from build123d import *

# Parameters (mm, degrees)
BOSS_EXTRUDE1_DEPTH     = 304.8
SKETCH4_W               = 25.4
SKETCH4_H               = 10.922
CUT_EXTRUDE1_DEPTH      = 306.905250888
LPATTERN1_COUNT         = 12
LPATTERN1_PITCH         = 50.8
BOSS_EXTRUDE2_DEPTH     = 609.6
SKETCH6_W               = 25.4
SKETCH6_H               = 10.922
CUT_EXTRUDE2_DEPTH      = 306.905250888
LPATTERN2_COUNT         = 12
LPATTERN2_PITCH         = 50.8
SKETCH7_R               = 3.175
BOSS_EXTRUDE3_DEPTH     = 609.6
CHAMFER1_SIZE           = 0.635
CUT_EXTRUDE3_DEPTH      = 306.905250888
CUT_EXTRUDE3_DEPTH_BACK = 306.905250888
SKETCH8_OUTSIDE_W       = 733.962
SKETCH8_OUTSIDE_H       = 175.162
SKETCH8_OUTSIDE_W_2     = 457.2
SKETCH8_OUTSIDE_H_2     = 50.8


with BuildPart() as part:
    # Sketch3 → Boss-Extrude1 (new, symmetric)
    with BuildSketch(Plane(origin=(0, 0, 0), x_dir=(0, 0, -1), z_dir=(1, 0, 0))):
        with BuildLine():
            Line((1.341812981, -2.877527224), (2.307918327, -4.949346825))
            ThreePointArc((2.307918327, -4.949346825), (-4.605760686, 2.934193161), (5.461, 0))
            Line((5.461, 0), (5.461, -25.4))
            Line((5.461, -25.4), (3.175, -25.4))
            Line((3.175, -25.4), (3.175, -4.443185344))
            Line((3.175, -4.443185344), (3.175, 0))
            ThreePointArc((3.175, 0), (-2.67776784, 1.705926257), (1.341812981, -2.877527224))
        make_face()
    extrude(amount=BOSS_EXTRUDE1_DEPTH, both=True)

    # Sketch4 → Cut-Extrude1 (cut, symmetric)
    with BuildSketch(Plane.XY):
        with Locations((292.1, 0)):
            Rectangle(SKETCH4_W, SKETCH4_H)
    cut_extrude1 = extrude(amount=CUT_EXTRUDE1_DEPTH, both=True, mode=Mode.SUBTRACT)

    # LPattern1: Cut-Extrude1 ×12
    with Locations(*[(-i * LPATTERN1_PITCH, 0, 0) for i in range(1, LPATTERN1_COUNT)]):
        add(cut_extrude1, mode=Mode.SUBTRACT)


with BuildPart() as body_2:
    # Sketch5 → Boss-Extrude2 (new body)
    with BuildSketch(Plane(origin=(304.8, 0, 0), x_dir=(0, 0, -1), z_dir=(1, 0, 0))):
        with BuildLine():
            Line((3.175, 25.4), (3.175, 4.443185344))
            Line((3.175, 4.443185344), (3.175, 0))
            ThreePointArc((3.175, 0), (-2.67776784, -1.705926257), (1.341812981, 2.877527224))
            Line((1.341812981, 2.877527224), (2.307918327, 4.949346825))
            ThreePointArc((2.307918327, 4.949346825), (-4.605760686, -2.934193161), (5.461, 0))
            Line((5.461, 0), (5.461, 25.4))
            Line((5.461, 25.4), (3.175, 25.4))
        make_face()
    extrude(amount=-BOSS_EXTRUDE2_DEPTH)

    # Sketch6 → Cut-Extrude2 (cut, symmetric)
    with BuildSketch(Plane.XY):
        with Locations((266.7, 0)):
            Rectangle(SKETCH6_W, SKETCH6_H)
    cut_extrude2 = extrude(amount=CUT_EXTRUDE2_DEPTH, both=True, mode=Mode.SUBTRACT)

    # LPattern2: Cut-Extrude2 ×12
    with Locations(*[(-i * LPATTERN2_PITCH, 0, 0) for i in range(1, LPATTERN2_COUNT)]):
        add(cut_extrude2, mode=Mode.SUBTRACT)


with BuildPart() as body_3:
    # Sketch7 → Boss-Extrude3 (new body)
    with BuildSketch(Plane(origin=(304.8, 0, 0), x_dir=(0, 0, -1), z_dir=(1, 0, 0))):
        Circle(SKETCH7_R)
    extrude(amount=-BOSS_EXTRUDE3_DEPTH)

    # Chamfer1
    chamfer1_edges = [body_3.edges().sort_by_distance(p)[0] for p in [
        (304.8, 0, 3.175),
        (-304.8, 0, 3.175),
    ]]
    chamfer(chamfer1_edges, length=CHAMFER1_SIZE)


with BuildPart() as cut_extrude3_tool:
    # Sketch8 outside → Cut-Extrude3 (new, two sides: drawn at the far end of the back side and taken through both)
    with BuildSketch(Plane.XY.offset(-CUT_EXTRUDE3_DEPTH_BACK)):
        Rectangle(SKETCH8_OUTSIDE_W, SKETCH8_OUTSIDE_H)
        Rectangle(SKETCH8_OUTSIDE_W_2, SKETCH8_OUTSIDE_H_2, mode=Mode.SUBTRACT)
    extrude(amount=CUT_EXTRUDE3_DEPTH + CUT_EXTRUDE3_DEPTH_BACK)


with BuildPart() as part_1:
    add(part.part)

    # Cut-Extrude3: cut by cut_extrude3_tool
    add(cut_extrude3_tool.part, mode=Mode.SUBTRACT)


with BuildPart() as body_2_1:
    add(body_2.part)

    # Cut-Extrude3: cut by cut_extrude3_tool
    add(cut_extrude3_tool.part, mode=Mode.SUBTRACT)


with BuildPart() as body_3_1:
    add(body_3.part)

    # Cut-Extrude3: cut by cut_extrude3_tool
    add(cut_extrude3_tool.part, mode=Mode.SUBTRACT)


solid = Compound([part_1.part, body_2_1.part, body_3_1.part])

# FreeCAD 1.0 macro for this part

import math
import FreeCAD as App
import Part
import Sketcher
from FreeCAD import Vector
Q = App.Units.Quantity


def edges_at(feature, points):
    """Names of the edges that pass closest to the given points."""
    edges = feature.Shape.Edges
    near = lambda p: min(range(len(edges)), key=lambda i: edges[i].distToShape(Part.Vertex(*p))[0])
    return sorted({f"Edge{near(p) + 1}" for p in points})


def add_polygon(sketch, points):
    """Adds a closed chain of lines whose ends are joined by coincident constraints."""
    first, n = sketch.GeometryCount, len(points)
    for a, b in zip(points, points[1:] + points[:1]):
        sketch.addGeometry(Part.LineSegment(App.Vector(*a, 0), App.Vector(*b, 0)), False)
    for i in range(n):
        sketch.addConstraint(Sketcher.Constraint("Coincident", first + i, 2, first + (i + 1) % n, 1))

doc = App.newDocument("Part")
body = doc.addObject("PartDesign::Body", "Body")

sketch1 = body.newObject("Sketcher::SketchObject", "Sketch")
sketch1.AttachmentSupport = (doc.getObject("YZ_Plane"), [""])
sketch1.MapMode = "FlatFace"
sketch1.addGeometry([
    Part.LineSegment(Vector(-4.949347, -2.307918, 0), Vector(-2.877527, -1.341813, 0)),
    Part.ArcOfCircle(Part.Circle(Vector(0, 0, 0), Vector(0, 0, 1), 3.175), math.radians(-90), math.radians(205)),
    Part.LineSegment(Vector(0, -3.175, 0), Vector(-25.4, -3.175, 0)),
    Part.LineSegment(Vector(-25.4, -3.175, 0), Vector(-25.4, -5.461, 0)),
    Part.LineSegment(Vector(-25.4, -5.461, 0), Vector(0, -5.461, 0)),
    Part.ArcOfCircle(Part.Circle(Vector(0, 0, 0), Vector(0, 0, 1), 5.461), math.radians(-90), math.radians(205)),
], False)
sketch1.addConstraint([
    Sketcher.Constraint("Coincident", 0, 2, 1, 2),
    Sketcher.Constraint("Tangent", 1, 1, 2, 1),
    Sketcher.Constraint("Coincident", 2, 2, 3, 1),
    Sketcher.Constraint("Coincident", 3, 2, 4, 1),
    Sketcher.Constraint("Tangent", 4, 2, 5, 1),
    Sketcher.Constraint("Coincident", 5, 2, 0, 1),
    Sketcher.Constraint("Horizontal", 2),
    Sketcher.Constraint("Vertical", 3),
    Sketcher.Constraint("Horizontal", 4),
    Sketcher.Constraint("Coincident", 1, 3, -1, 1),
    Sketcher.Constraint("Coincident", 5, 3, -1, 1),
    Sketcher.Constraint("DistanceX", 2, 2, 2, 1, Q("1 in")),
    Sketcher.Constraint("Angle", 0, Q("25 deg")),
    Sketcher.Constraint("Radius", 1, Q("0.125 in")),
    Sketcher.Constraint("Radius", 5, Q("0.215 in")),
    Sketcher.Constraint("DistanceY", 5, 2, -1, 1, Q("2.307918 mm")),
])
pad1 = body.newObject("PartDesign::Pad", "Pad")
pad1.Profile = sketch1
pad1.Length = Q("24 in")
pad1.Midplane = True

sketch2 = body.newObject("Sketcher::SketchObject", "Sketch001")
sketch2.AttachmentSupport = (doc.getObject("XY_Plane"), [""])
sketch2.MapMode = "FlatFace"
add_polygon(sketch2, [(279.4, 5.461), (279.4, -5.461), (304.8, -5.461), (304.8, 5.461)])
sketch2.addConstraint([
    Sketcher.Constraint("Vertical", 0),
    Sketcher.Constraint("Horizontal", 1),
    Sketcher.Constraint("Vertical", 2),
    Sketcher.Constraint("Horizontal", 3),
    Sketcher.Constraint("DistanceX", 1, 1, 1, 2, Q("1 in")),
    Sketcher.Constraint("DistanceX", -1, 1, 0, 2, Q("11 in")),
    Sketcher.Constraint("DistanceY", 0, 2, 0, 1, Q("0.43 in")),
    Sketcher.Constraint("DistanceY", 0, 2, -1, 1, Q("0.215 in")),
])
pocket1 = body.newObject("PartDesign::Pocket", "Pocket")
pocket1.Profile = sketch2
pocket1.Length = 613.810502
pocket1.Midplane = True
doc.recompute()

linearpattern = body.newObject("PartDesign::LinearPattern", "LinearPattern")
linearpattern.Originals = [pocket1]
linearpattern.Direction = (doc.getObject("X_Axis"), [""])
linearpattern.Mode = "offset"
linearpattern.Offset = Q("2 in")
linearpattern.Occurrences = 12
linearpattern.Reversed = True
body.Tip = linearpattern
body2 = doc.addObject("PartDesign::Body", "Body001")

sketch3 = body2.newObject("Sketcher::SketchObject", "Sketch002")
sketch3.AttachmentSupport = (doc.getObject("YZ_Plane001"), [""])
sketch3.MapMode = "FlatFace"
sketch3.AttachmentOffset = App.Placement(Vector(0, 0, 12 * 25.4), App.Rotation())
sketch3.addGeometry([
    Part.LineSegment(Vector(25.4, -3.175, 0), Vector(0, -3.175, 0)),
    Part.ArcOfCircle(Part.Circle(Vector(0, 0, 0), Vector(0, 0, 1), 3.175), math.radians(-25), math.radians(270)),
    Part.LineSegment(Vector(2.877527, -1.341813, 0), Vector(4.949347, -2.307918, 0)),
    Part.ArcOfCircle(Part.Circle(Vector(0, 0, 0), Vector(0, 0, 1), 5.461), math.radians(-25), math.radians(270)),
    Part.LineSegment(Vector(0, -5.461, 0), Vector(25.4, -5.461, 0)),
    Part.LineSegment(Vector(25.4, -5.461, 0), Vector(25.4, -3.175, 0)),
], False)
sketch3.addConstraint([
    Sketcher.Constraint("Tangent", 0, 2, 1, 2),
    Sketcher.Constraint("Coincident", 1, 1, 2, 1),
    Sketcher.Constraint("Coincident", 2, 2, 3, 1),
    Sketcher.Constraint("Tangent", 3, 2, 4, 1),
    Sketcher.Constraint("Coincident", 4, 2, 5, 1),
    Sketcher.Constraint("Coincident", 5, 2, 0, 1),
    Sketcher.Constraint("Horizontal", 0),
    Sketcher.Constraint("Horizontal", 4),
    Sketcher.Constraint("Vertical", 5),
    Sketcher.Constraint("Coincident", 1, 3, -1, 1),
    Sketcher.Constraint("Coincident", 3, 3, -1, 1),
    Sketcher.Constraint("DistanceX", 0, 2, 0, 1, Q("1 in")),
    Sketcher.Constraint("Angle", 2, Q("-25 deg")),
    Sketcher.Constraint("Radius", 1, Q("0.125 in")),
    Sketcher.Constraint("Radius", 3, Q("0.215 in")),
    Sketcher.Constraint("DistanceY", 2, 2, -1, 1, Q("2.307918 mm")),
])
pad2 = body2.newObject("PartDesign::Pad", "Pad001")
pad2.Profile = sketch3
pad2.Length = Q("24 in")
pad2.Reversed = True

sketch4 = body2.newObject("Sketcher::SketchObject", "Sketch003")
sketch4.AttachmentSupport = (doc.getObject("XY_Plane001"), [""])
sketch4.MapMode = "FlatFace"
add_polygon(sketch4, [(254, 5.461), (254, -5.461), (279.4, -5.461), (279.4, 5.461)])
sketch4.addConstraint([
    Sketcher.Constraint("Vertical", 0),
    Sketcher.Constraint("Horizontal", 1),
    Sketcher.Constraint("Vertical", 2),
    Sketcher.Constraint("Horizontal", 3),
    Sketcher.Constraint("DistanceX", 1, 1, 1, 2, Q("1 in")),
    Sketcher.Constraint("DistanceX", -1, 1, 0, 2, Q("10 in")),
    Sketcher.Constraint("DistanceY", 0, 2, 0, 1, Q("0.43 in")),
    Sketcher.Constraint("DistanceY", 0, 2, -1, 1, Q("0.215 in")),
])
pocket2 = body2.newObject("PartDesign::Pocket", "Pocket001")
pocket2.Profile = sketch4
pocket2.Length = 613.810502
pocket2.Midplane = True
doc.recompute()

linearpattern2 = body2.newObject("PartDesign::LinearPattern", "LinearPattern001")
linearpattern2.Originals = [pocket2]
linearpattern2.Direction = (doc.getObject("X_Axis001"), [""])
linearpattern2.Mode = "offset"
linearpattern2.Offset = Q("2 in")
linearpattern2.Occurrences = 12
linearpattern2.Reversed = True
body2.Tip = linearpattern2
body3 = doc.addObject("PartDesign::Body", "Body002")

sketch5 = body3.newObject("Sketcher::SketchObject", "Sketch004")
sketch5.AttachmentSupport = (doc.getObject("YZ_Plane002"), [""])
sketch5.MapMode = "FlatFace"
sketch5.AttachmentOffset = App.Placement(Vector(0, 0, 12 * 25.4), App.Rotation())
sketch5.addGeometry(Part.Circle(Vector(0, 0, 0), Vector(0, 0, 1), 3.175), False)
sketch5.addConstraint([
    Sketcher.Constraint("Coincident", 0, 3, -1, 1),
    Sketcher.Constraint("Diameter", 0, Q("0.25 in")),
])
pad3 = body3.newObject("PartDesign::Pad", "Pad002")
pad3.Profile = sketch5
pad3.Length = Q("24 in")
pad3.Reversed = True
doc.recompute()

chamfer = body3.newObject("PartDesign::Chamfer", "Chamfer")
chamfer.Base = (pad3, edges_at(pad3, [(304.8, 0, 3.175), (-304.8, 0, 3.175)]))
chamfer.Size = Q("0.025 in")
body4 = doc.addObject("PartDesign::Body", "Body003")

sketch6 = body4.newObject("Sketcher::SketchObject", "Sketch005")
sketch6.AttachmentSupport = (doc.getObject("XY_Plane003"), [""])
sketch6.MapMode = "FlatFace"
add_polygon(sketch6, [(-366.981, 87.581), (-366.981, -87.581), (366.981, -87.581), (366.981, 87.581)])
add_polygon(sketch6, [(228.6, -25.4), (-228.6, -25.4), (-228.6, 25.4), (228.6, 25.4)])
sketch6.addConstraint([
    Sketcher.Constraint("Vertical", 0),
    Sketcher.Constraint("Horizontal", 1),
    Sketcher.Constraint("Vertical", 2),
    Sketcher.Constraint("Horizontal", 3),
    Sketcher.Constraint("Horizontal", 4),
    Sketcher.Constraint("Vertical", 5),
    Sketcher.Constraint("Horizontal", 6),
    Sketcher.Constraint("Vertical", 7),
    Sketcher.Constraint("Symmetric", 0, 2, 2, 2, -1, 1),
    Sketcher.Constraint("Symmetric", 4, 2, 6, 2, -1, 1),
    Sketcher.Constraint("DistanceX", 4, 2, 4, 1, Q("18 in")),
    Sketcher.Constraint("DistanceY", 5, 1, 5, 2, Q("2 in")),
    Sketcher.Constraint("DistanceX", 1, 1, 1, 2, Q("733.962 mm")),
    Sketcher.Constraint("DistanceY", 0, 2, 0, 1, Q("175.162 mm")),
])
pad4 = body4.newObject("PartDesign::Pad", "Pad003")
pad4.Profile = sketch6
pad4.Type = "TwoLengths"
pad4.Length = 306.905251
pad4.Length2 = 306.905251
doc.recompute()

body5 = doc.addObject("PartDesign::Body", "Body004")
body5.BaseFeature = body4
boolean = body.newObject("PartDesign::Boolean", "Boolean")
boolean.Type = "Cut"
boolean.addObjects([body5])
doc.recompute()

body6 = doc.addObject("PartDesign::Body", "Body005")
body6.BaseFeature = body4
boolean2 = body2.newObject("PartDesign::Boolean", "Boolean001")
boolean2.Type = "Cut"
boolean2.addObjects([body6])
doc.recompute()

boolean3 = body3.newObject("PartDesign::Boolean", "Boolean002")
boolean3.Type = "Cut"
boolean3.addObjects([body4])

doc.recompute()
